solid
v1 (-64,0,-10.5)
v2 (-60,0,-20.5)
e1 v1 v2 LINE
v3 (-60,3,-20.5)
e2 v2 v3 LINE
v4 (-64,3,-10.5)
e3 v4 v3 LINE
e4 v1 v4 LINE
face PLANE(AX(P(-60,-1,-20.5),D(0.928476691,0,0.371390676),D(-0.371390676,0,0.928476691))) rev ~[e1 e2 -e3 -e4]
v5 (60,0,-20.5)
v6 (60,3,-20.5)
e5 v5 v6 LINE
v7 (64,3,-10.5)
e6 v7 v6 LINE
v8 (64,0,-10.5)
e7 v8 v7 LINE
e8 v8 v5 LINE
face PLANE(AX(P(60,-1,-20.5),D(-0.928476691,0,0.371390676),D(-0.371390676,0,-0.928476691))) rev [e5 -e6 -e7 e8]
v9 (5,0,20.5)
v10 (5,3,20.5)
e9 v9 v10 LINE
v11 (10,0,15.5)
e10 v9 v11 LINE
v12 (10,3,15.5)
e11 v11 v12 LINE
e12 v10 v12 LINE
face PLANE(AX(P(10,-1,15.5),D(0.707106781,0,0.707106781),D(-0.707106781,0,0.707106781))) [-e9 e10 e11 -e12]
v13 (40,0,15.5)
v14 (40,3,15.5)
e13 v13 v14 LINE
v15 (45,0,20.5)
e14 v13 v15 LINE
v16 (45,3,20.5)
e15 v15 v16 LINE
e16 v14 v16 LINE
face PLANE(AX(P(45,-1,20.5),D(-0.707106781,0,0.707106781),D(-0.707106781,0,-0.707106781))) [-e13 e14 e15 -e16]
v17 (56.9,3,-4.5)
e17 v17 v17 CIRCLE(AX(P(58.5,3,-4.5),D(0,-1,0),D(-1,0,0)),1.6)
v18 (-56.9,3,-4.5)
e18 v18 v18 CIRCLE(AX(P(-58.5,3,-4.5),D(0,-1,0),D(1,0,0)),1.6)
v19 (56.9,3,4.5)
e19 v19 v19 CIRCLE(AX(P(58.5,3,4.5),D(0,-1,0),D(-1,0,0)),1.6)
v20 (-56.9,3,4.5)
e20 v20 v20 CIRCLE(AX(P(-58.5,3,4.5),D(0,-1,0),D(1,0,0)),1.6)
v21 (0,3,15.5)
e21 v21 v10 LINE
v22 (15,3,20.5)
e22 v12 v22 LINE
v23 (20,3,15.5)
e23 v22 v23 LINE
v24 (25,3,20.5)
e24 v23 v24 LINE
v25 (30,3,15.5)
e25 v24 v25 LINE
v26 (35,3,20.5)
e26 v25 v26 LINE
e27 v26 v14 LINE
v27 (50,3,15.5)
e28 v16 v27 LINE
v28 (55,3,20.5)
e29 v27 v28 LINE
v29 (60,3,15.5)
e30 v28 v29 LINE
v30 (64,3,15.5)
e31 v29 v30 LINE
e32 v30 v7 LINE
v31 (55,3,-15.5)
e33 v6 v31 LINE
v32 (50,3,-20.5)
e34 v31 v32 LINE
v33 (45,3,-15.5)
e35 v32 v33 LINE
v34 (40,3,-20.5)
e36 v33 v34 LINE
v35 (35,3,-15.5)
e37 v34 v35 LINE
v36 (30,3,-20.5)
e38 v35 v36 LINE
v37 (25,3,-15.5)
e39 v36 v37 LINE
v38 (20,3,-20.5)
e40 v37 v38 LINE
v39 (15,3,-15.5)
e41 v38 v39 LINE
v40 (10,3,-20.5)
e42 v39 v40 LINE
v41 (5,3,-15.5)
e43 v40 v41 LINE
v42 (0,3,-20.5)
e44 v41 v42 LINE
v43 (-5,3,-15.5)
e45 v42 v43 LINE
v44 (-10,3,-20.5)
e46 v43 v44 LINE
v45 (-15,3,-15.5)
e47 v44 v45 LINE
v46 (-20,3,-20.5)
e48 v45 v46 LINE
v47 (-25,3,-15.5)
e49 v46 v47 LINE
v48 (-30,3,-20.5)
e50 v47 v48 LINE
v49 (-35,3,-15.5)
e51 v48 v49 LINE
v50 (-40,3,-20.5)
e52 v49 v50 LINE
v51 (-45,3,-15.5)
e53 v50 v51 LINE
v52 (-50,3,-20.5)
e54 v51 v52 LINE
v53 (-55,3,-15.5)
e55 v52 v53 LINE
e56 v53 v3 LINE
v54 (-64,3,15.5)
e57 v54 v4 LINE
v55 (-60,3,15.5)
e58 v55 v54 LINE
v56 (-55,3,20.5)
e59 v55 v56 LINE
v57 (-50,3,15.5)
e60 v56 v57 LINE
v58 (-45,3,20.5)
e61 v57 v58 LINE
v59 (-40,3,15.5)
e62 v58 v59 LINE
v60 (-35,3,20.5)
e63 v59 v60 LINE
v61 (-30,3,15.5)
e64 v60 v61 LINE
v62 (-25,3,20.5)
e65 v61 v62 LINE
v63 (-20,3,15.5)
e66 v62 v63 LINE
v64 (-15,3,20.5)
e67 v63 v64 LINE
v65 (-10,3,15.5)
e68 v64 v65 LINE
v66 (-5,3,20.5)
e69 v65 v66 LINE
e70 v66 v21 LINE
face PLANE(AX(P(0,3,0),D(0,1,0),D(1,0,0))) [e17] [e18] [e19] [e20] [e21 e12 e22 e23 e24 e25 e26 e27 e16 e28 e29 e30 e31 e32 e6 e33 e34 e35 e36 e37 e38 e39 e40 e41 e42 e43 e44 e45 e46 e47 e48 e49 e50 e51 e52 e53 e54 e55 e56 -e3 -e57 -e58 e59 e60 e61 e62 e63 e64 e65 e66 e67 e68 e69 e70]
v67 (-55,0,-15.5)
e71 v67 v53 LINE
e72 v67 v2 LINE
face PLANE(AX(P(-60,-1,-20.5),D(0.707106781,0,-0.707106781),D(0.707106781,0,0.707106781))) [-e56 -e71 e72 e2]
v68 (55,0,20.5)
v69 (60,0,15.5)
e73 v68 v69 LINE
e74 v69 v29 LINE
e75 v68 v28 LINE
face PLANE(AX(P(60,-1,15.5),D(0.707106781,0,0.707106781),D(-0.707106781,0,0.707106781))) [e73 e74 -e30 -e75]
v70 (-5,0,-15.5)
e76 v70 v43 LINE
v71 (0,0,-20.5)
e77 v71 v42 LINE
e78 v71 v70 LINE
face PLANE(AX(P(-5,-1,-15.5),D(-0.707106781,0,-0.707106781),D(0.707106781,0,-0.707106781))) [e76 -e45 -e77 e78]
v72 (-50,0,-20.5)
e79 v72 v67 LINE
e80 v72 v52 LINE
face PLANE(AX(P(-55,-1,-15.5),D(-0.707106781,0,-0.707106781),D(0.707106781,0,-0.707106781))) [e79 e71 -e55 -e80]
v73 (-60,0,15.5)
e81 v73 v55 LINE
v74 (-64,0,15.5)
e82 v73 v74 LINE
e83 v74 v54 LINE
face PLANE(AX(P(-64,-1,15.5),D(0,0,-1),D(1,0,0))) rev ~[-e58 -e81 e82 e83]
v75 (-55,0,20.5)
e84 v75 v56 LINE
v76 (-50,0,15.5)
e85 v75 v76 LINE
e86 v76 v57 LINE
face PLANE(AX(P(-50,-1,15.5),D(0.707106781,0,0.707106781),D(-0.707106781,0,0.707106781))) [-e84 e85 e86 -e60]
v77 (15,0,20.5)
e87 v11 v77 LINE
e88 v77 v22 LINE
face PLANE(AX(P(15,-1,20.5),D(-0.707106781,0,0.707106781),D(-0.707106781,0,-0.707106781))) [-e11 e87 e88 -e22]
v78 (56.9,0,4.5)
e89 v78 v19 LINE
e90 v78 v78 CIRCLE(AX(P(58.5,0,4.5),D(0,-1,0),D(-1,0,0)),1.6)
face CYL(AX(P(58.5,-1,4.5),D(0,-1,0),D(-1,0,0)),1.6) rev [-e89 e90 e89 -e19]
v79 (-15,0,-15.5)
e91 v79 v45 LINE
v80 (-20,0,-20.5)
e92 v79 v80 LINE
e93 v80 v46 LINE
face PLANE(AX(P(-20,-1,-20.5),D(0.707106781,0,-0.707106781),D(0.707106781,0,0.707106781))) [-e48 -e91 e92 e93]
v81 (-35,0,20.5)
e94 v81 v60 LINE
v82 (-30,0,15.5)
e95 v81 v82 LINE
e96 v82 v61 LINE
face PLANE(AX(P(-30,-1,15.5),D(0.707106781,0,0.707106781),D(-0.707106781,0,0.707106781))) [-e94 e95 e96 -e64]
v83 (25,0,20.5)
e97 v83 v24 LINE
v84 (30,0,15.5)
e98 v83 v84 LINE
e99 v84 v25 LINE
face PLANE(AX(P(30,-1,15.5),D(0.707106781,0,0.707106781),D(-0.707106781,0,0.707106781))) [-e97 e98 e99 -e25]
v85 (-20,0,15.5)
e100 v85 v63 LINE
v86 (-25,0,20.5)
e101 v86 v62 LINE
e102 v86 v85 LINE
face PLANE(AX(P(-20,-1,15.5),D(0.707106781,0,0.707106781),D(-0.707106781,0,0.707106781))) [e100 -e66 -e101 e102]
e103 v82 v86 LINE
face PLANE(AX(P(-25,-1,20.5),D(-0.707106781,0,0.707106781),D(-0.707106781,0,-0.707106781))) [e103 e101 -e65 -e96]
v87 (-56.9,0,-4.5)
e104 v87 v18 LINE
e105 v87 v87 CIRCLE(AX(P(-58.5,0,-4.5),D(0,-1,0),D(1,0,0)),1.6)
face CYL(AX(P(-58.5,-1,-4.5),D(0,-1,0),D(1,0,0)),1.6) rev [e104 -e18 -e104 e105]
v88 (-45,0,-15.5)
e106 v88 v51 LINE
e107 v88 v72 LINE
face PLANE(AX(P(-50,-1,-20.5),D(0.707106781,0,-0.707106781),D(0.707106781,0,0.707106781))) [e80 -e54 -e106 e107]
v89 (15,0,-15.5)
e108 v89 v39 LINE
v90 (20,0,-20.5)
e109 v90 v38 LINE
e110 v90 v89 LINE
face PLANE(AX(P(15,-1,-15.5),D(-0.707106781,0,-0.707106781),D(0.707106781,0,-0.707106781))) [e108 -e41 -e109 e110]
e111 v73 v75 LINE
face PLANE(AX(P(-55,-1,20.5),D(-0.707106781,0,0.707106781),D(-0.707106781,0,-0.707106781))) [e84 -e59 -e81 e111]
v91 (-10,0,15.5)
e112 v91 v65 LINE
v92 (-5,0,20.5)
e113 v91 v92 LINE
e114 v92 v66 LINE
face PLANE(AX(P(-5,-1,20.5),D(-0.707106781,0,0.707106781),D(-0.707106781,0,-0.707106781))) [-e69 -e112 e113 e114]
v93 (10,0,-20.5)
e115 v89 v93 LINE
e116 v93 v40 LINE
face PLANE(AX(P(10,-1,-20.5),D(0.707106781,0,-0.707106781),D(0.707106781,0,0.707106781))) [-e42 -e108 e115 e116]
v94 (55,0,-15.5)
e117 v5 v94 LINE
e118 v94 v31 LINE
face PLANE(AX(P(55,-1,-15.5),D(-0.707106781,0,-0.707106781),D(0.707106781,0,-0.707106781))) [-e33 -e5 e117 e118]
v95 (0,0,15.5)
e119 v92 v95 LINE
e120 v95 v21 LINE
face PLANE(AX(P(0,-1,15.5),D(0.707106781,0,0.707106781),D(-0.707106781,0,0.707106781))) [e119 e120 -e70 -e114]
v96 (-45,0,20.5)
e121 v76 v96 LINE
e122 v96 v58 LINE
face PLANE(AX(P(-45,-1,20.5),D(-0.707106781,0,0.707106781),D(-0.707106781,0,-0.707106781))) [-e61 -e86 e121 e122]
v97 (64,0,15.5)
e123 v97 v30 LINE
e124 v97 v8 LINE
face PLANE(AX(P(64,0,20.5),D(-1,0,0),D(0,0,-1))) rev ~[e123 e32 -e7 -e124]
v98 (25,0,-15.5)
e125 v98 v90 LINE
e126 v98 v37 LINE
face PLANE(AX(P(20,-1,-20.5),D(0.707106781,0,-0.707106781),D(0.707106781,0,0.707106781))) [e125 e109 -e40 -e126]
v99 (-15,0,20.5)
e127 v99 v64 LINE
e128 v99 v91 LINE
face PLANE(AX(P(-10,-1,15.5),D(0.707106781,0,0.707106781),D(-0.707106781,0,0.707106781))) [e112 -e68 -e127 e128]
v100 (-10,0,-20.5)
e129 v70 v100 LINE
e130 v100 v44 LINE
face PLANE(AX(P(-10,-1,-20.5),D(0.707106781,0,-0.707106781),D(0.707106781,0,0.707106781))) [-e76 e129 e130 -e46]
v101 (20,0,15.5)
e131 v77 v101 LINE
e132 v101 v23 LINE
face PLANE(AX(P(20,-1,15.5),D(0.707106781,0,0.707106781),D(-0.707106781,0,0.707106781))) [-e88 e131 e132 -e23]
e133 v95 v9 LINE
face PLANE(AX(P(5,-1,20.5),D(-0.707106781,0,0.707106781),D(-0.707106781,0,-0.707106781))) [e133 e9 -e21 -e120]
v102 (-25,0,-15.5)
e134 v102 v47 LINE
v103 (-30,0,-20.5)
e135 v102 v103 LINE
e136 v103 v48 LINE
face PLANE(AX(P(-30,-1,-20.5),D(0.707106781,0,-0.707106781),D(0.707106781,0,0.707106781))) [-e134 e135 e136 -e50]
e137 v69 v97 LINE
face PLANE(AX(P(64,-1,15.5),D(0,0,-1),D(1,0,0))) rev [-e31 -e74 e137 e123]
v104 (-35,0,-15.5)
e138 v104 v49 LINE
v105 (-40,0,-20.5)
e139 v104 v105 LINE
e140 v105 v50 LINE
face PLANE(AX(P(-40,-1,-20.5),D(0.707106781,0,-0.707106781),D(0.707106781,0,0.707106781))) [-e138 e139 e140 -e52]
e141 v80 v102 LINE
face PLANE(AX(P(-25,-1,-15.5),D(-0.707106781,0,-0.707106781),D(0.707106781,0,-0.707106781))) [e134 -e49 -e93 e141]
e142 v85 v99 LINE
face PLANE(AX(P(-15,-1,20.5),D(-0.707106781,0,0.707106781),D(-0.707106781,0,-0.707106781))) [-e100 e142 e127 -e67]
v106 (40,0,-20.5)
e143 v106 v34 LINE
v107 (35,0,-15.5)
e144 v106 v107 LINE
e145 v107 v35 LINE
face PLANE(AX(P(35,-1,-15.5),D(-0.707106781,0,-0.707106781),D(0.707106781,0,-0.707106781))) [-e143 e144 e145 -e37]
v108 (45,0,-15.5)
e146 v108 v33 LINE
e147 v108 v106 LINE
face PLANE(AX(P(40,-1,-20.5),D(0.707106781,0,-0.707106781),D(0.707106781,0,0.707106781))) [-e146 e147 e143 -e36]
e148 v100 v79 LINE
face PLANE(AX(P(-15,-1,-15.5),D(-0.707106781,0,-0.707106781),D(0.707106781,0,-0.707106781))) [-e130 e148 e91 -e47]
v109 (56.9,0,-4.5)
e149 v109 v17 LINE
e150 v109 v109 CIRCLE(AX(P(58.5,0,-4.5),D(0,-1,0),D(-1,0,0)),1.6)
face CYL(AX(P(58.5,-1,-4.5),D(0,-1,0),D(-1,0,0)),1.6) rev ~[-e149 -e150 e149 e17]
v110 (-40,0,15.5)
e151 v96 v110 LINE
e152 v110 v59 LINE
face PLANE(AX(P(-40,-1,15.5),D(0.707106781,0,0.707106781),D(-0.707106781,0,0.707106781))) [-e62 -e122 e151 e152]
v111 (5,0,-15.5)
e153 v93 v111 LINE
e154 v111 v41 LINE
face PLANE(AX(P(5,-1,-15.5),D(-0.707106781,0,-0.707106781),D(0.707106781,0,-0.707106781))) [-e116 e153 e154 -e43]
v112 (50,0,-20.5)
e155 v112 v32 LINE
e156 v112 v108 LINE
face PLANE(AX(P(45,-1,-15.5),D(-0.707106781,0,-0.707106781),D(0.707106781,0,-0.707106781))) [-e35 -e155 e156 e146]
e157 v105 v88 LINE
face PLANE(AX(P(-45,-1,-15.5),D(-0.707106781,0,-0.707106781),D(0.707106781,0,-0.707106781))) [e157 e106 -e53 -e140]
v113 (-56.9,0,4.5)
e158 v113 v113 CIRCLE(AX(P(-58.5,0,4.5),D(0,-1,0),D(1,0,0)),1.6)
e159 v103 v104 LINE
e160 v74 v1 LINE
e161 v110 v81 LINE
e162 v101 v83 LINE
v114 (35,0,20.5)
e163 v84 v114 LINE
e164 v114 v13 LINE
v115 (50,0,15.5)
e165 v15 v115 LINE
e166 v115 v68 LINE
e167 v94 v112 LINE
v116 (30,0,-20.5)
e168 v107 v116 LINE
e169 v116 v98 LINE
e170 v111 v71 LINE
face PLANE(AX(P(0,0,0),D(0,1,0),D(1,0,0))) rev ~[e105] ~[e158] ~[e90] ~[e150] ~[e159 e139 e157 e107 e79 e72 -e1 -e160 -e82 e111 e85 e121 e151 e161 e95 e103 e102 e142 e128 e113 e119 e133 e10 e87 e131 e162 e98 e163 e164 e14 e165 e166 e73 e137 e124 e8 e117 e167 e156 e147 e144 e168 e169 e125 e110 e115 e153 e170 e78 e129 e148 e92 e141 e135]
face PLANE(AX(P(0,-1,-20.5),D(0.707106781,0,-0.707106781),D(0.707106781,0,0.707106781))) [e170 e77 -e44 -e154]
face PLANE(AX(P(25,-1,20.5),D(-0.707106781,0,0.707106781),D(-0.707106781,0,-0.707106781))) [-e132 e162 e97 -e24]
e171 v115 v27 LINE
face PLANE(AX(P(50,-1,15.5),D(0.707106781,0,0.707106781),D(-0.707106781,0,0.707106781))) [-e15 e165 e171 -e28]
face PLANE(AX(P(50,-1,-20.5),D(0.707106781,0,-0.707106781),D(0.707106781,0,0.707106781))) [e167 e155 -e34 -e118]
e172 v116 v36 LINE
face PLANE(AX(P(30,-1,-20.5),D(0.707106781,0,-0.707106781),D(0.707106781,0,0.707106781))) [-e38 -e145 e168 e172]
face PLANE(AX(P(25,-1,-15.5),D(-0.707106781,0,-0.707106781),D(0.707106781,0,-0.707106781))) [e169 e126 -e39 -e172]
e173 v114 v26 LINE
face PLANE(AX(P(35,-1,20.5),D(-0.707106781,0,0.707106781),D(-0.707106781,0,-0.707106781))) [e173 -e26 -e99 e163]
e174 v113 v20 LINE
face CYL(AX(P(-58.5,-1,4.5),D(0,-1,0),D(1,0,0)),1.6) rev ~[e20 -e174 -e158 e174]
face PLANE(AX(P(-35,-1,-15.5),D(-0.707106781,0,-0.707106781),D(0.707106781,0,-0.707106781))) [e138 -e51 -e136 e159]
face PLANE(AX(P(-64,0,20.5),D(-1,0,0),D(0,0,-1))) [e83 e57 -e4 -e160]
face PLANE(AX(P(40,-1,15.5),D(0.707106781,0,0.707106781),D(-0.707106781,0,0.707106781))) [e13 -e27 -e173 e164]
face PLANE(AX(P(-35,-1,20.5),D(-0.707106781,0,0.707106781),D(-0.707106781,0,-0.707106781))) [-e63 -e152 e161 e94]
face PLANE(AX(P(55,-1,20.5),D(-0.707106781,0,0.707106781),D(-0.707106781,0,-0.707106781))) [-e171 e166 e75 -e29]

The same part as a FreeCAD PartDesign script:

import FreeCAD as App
import Part
import Sketcher


def add_polygon(sketch, points):
    """Adds a closed chain of lines whose ends are joined by coincident constraints."""
    first, n = sketch.GeometryCount, len(points)
    for a, b in zip(points, points[1:] + points[:1]):
        sketch.addGeometry(Part.LineSegment(App.Vector(*a, 0), App.Vector(*b, 0)), False)
    for i in range(n):
        sketch.addConstraint(Sketcher.Constraint("Coincident", first + i, 2, first + (i + 1) % n, 1))

doc = App.newDocument("Part")
body = doc.addObject("PartDesign::Body", "Body")

# Sketch on XZ plane
sketch1 = body.newObject("Sketcher::SketchObject", "Sketch")
sketch1.AttachmentSupport = (doc.getObject("XZ_Plane"), [""])
sketch1.MapMode = "FlatFace"
add_polygon(sketch1, [(-64, -20), (-64, 20), (64, 20), (64, -20)])  # lines 0-3
sketch1.addConstraint([
    Sketcher.Constraint("Vertical", 0),
    Sketcher.Constraint("Horizontal", 1),
    Sketcher.Constraint("Vertical", 2),
    Sketcher.Constraint("Horizontal", 3),
    Sketcher.Constraint("Symmetric", 0, 2, 2, 2, -1, 1),
    Sketcher.Constraint("DistanceX", 1, 1, 1, 2, 128.0),
    Sketcher.Constraint("DistanceY", 0, 1, 0, 2, 41.0),
])
pad1 = body.newObject("PartDesign::Pad", "Pad")
pad1.Profile = sketch1
pad1.Length = 3
pad1.Reversed = True

# Sketch on XZ plane
sketch2 = body.newObject("Sketcher::SketchObject", "Sketch001")
sketch2.AttachmentSupport = (doc.getObject("XZ_Plane"), [""])
sketch2.MapMode = "FlatFace"
sketch2.AttachmentOffset = App.Placement(App.Vector(0, 0, 1), App.Rotation())
add_polygon(sketch2, [(-60, -20), (-55, -16), (-50, -20)])  # lines 0-2
sketch2.addConstraint([
    Sketcher.Constraint("Horizontal", 2),
    Sketcher.Constraint("Perpendicular", 0, 1),
    Sketcher.Constraint("Equal", 0, 1),
    Sketcher.Constraint("DistanceX", 2, 2, 2, 1, 10.0),
    Sketcher.Constraint("DistanceX", 0, 2, -1, 1, 55.0),
    Sketcher.Constraint("DistanceY", 0, 2, -1, 1, 15.5),
])
pocket1 = body.newObject("PartDesign::Pocket", "Pocket")
pocket1.Profile = sketch2
pocket1.Length = 5
doc.recompute()

linearpattern = body.newObject("PartDesign::LinearPattern", "LinearPattern")
linearpattern.Originals = [pocket1]
linearpattern.Direction = (doc.getObject("X_Axis"), [""])
linearpattern.Mode = "offset"
linearpattern.Offset = 10
linearpattern.Occurrences = 12
body.Tip = linearpattern

# Sketch on XZ plane
sketch3 = body.newObject("Sketcher::SketchObject", "Sketch002")
sketch3.AttachmentSupport = (doc.getObject("XZ_Plane"), [""])
sketch3.MapMode = "FlatFace"
sketch3.AttachmentOffset = App.Placement(App.Vector(0, 0, 1), App.Rotation())
add_polygon(sketch3, [(-55, 20), (-60, 16), (-60, 20)])  # lines 0-2
add_polygon(sketch3, [(-50, 16), (-55, 20), (-50, 20)])  # lines 3-5
sketch3.addConstraint([
    Sketcher.Constraint("Vertical", 1),
    Sketcher.Constraint("Horizontal", 2),
    Sketcher.Constraint("Horizontal", 4),
    Sketcher.Constraint("Vertical", 5),
    Sketcher.Constraint("Coincident", 3, 2, 2, 2),
    Sketcher.Constraint("Perpendicular", 0, 3),
    Sketcher.Constraint("Horizontal", 0, 2, 5, 2),
    Sketcher.Constraint("Equal", 2, 4),
    Sketcher.Constraint("DistanceX", 2, 1, 2, 2, 5.0),
    Sketcher.Constraint("DistanceX", 0, 2, -1, 1, 60.0),
    Sketcher.Constraint("DistanceY", -1, 1, 0, 2, 15.5),
])
pocket2 = body.newObject("PartDesign::Pocket", "Pocket001")
pocket2.Profile = sketch3
pocket2.Length = 5
doc.recompute()

linearpattern2 = body.newObject("PartDesign::LinearPattern", "LinearPattern001")
linearpattern2.Originals = [pocket2]
linearpattern2.Direction = (doc.getObject("X_Axis"), [""])
linearpattern2.Mode = "offset"
linearpattern2.Offset = 10
linearpattern2.Occurrences = 12
body.Tip = linearpattern2

# Sketch on XZ plane
sketch4 = body.newObject("Sketcher::SketchObject", "Sketch003")
sketch4.AttachmentSupport = (doc.getObject("XZ_Plane"), [""])
sketch4.MapMode = "FlatFace"
sketch4.AttachmentOffset = App.Placement(App.Vector(0, 0, 1), App.Rotation())
sketch4.addGeometry(Part.Circle(App.Vector(-58.5, -4.5, 0), App.Vector(0, 0, 1), 1.6), False)
sketch4.addConstraint([
    Sketcher.Constraint("Diameter", 0, 3.2),
    Sketcher.Constraint("DistanceX", 0, 3, -1, 1, 58.5),
    Sketcher.Constraint("DistanceY", 0, 3, -1, 1, 4.5),
])
pocket3 = body.newObject("PartDesign::Pocket", "Pocket002")
pocket3.Profile = sketch4
pocket3.Length = 5
doc.recompute()

mirrored = body.newObject("PartDesign::Mirrored", "Mirrored")
mirrored.Originals = [pocket3]
mirrored.MirrorPlane = (doc.getObject("YZ_Plane"), [""])
body.Tip = mirrored
doc.recompute()

mirrored2 = body.newObject("PartDesign::Mirrored", "Mirrored001")
mirrored2.Originals = [pocket3]
mirrored2.MirrorPlane = (doc.getObject("XY_Plane"), [""])
body.Tip = mirrored2

# Sketch on XZ plane
sketch5 = body.newObject("Sketcher::SketchObject", "Sketch004")
sketch5.AttachmentSupport = (doc.getObject("XZ_Plane"), [""])
sketch5.MapMode = "FlatFace"
sketch5.AttachmentOffset = App.Placement(App.Vector(0, 0, 1), App.Rotation())
sketch5.addGeometry(Part.Circle(App.Vector(58.5, 4.5, 0), App.Vector(0, 0, 1), 1.6), False)
sketch5.addConstraint([
    Sketcher.Constraint("Diameter", 0, 3.2),
    Sketcher.Constraint("DistanceX", -1, 1, 0, 3, 58.5),
    Sketcher.Constraint("DistanceY", -1, 1, 0, 3, 4.5),
])
pocket4 = body.newObject("PartDesign::Pocket", "Pocket003")
pocket4.Profile = sketch5
pocket4.Length = 5

# Sketch on XZ plane
sketch6 = body.newObject("Sketcher::SketchObject", "Sketch005")
sketch6.AttachmentSupport = (doc.getObject("XZ_Plane"), [""])
sketch6.MapMode = "FlatFace"
sketch6.AttachmentOffset = App.Placement(App.Vector(0, 0, 1), App.Rotation())
add_polygon(sketch6, [(-64, -10.5), (-60, -20.5), (-64, -20.5)])  # lines 0-2
sketch6.addConstraint([
    Sketcher.Constraint("Horizontal", 1),
    Sketcher.Constraint("Vertical", 2),
    Sketcher.Constraint("DistanceX", 1, 2, 1, 1, 4.0),
    Sketcher.Constraint("DistanceY", 2, 1, 2, 2, 10.0),
    Sketcher.Constraint("DistanceX", 0, 2, -1, 1, 60.0),
    Sketcher.Constraint("DistanceY", 0, 2, -1, 1, 20.5),
])
pocket5 = body.newObject("PartDesign::Pocket", "Pocket004")
pocket5.Profile = sketch6
pocket5.Length = 5
doc.recompute()

mirrored3 = body.newObject("PartDesign::Mirrored", "Mirrored002")
mirrored3.Originals = [pocket5]
mirrored3.MirrorPlane = (doc.getObject("YZ_Plane"), [""])
body.Tip = mirrored3

# Sketch on XZ plane
sketch7 = body.newObject("Sketcher::SketchObject", "Sketch006")
sketch7.AttachmentSupport = (doc.getObject("XZ_Plane"), [""])
sketch7.MapMode = "FlatFace"
sketch7.AttachmentOffset = App.Placement(App.Vector(0, 0, 1), App.Rotation())
add_polygon(sketch7, [(-64, 15.5), (-64, 20.5), (-60, 20.5), (-60, 15.5)])  # lines 0-3
sketch7.addConstraint([
    Sketcher.Constraint("Vertical", 0),
    Sketcher.Constraint("Horizontal", 1),
    Sketcher.Constraint("Vertical", 2),
    Sketcher.Constraint("Horizontal", 3),
    Sketcher.Constraint("DistanceX", 1, 1, 1, 2, 4.0),
    Sketcher.Constraint("DistanceY", 0, 1, 0, 2, 5.0),
    Sketcher.Constraint("DistanceX", 0, 2, -1, 1, 64.0),
    Sketcher.Constraint("DistanceY", -1, 1, 0, 2, 20.5),
])
pocket6 = body.newObject("PartDesign::Pocket", "Pocket005")
pocket6.Profile = sketch7
pocket6.Length = 5
doc.recompute()

mirrored4 = body.newObject("PartDesign::Mirrored", "Mirrored003")
mirrored4.Originals = [pocket6]
mirrored4.MirrorPlane = (doc.getObject("YZ_Plane"), [""])
body.Tip = mirrored4

doc.recompute()
